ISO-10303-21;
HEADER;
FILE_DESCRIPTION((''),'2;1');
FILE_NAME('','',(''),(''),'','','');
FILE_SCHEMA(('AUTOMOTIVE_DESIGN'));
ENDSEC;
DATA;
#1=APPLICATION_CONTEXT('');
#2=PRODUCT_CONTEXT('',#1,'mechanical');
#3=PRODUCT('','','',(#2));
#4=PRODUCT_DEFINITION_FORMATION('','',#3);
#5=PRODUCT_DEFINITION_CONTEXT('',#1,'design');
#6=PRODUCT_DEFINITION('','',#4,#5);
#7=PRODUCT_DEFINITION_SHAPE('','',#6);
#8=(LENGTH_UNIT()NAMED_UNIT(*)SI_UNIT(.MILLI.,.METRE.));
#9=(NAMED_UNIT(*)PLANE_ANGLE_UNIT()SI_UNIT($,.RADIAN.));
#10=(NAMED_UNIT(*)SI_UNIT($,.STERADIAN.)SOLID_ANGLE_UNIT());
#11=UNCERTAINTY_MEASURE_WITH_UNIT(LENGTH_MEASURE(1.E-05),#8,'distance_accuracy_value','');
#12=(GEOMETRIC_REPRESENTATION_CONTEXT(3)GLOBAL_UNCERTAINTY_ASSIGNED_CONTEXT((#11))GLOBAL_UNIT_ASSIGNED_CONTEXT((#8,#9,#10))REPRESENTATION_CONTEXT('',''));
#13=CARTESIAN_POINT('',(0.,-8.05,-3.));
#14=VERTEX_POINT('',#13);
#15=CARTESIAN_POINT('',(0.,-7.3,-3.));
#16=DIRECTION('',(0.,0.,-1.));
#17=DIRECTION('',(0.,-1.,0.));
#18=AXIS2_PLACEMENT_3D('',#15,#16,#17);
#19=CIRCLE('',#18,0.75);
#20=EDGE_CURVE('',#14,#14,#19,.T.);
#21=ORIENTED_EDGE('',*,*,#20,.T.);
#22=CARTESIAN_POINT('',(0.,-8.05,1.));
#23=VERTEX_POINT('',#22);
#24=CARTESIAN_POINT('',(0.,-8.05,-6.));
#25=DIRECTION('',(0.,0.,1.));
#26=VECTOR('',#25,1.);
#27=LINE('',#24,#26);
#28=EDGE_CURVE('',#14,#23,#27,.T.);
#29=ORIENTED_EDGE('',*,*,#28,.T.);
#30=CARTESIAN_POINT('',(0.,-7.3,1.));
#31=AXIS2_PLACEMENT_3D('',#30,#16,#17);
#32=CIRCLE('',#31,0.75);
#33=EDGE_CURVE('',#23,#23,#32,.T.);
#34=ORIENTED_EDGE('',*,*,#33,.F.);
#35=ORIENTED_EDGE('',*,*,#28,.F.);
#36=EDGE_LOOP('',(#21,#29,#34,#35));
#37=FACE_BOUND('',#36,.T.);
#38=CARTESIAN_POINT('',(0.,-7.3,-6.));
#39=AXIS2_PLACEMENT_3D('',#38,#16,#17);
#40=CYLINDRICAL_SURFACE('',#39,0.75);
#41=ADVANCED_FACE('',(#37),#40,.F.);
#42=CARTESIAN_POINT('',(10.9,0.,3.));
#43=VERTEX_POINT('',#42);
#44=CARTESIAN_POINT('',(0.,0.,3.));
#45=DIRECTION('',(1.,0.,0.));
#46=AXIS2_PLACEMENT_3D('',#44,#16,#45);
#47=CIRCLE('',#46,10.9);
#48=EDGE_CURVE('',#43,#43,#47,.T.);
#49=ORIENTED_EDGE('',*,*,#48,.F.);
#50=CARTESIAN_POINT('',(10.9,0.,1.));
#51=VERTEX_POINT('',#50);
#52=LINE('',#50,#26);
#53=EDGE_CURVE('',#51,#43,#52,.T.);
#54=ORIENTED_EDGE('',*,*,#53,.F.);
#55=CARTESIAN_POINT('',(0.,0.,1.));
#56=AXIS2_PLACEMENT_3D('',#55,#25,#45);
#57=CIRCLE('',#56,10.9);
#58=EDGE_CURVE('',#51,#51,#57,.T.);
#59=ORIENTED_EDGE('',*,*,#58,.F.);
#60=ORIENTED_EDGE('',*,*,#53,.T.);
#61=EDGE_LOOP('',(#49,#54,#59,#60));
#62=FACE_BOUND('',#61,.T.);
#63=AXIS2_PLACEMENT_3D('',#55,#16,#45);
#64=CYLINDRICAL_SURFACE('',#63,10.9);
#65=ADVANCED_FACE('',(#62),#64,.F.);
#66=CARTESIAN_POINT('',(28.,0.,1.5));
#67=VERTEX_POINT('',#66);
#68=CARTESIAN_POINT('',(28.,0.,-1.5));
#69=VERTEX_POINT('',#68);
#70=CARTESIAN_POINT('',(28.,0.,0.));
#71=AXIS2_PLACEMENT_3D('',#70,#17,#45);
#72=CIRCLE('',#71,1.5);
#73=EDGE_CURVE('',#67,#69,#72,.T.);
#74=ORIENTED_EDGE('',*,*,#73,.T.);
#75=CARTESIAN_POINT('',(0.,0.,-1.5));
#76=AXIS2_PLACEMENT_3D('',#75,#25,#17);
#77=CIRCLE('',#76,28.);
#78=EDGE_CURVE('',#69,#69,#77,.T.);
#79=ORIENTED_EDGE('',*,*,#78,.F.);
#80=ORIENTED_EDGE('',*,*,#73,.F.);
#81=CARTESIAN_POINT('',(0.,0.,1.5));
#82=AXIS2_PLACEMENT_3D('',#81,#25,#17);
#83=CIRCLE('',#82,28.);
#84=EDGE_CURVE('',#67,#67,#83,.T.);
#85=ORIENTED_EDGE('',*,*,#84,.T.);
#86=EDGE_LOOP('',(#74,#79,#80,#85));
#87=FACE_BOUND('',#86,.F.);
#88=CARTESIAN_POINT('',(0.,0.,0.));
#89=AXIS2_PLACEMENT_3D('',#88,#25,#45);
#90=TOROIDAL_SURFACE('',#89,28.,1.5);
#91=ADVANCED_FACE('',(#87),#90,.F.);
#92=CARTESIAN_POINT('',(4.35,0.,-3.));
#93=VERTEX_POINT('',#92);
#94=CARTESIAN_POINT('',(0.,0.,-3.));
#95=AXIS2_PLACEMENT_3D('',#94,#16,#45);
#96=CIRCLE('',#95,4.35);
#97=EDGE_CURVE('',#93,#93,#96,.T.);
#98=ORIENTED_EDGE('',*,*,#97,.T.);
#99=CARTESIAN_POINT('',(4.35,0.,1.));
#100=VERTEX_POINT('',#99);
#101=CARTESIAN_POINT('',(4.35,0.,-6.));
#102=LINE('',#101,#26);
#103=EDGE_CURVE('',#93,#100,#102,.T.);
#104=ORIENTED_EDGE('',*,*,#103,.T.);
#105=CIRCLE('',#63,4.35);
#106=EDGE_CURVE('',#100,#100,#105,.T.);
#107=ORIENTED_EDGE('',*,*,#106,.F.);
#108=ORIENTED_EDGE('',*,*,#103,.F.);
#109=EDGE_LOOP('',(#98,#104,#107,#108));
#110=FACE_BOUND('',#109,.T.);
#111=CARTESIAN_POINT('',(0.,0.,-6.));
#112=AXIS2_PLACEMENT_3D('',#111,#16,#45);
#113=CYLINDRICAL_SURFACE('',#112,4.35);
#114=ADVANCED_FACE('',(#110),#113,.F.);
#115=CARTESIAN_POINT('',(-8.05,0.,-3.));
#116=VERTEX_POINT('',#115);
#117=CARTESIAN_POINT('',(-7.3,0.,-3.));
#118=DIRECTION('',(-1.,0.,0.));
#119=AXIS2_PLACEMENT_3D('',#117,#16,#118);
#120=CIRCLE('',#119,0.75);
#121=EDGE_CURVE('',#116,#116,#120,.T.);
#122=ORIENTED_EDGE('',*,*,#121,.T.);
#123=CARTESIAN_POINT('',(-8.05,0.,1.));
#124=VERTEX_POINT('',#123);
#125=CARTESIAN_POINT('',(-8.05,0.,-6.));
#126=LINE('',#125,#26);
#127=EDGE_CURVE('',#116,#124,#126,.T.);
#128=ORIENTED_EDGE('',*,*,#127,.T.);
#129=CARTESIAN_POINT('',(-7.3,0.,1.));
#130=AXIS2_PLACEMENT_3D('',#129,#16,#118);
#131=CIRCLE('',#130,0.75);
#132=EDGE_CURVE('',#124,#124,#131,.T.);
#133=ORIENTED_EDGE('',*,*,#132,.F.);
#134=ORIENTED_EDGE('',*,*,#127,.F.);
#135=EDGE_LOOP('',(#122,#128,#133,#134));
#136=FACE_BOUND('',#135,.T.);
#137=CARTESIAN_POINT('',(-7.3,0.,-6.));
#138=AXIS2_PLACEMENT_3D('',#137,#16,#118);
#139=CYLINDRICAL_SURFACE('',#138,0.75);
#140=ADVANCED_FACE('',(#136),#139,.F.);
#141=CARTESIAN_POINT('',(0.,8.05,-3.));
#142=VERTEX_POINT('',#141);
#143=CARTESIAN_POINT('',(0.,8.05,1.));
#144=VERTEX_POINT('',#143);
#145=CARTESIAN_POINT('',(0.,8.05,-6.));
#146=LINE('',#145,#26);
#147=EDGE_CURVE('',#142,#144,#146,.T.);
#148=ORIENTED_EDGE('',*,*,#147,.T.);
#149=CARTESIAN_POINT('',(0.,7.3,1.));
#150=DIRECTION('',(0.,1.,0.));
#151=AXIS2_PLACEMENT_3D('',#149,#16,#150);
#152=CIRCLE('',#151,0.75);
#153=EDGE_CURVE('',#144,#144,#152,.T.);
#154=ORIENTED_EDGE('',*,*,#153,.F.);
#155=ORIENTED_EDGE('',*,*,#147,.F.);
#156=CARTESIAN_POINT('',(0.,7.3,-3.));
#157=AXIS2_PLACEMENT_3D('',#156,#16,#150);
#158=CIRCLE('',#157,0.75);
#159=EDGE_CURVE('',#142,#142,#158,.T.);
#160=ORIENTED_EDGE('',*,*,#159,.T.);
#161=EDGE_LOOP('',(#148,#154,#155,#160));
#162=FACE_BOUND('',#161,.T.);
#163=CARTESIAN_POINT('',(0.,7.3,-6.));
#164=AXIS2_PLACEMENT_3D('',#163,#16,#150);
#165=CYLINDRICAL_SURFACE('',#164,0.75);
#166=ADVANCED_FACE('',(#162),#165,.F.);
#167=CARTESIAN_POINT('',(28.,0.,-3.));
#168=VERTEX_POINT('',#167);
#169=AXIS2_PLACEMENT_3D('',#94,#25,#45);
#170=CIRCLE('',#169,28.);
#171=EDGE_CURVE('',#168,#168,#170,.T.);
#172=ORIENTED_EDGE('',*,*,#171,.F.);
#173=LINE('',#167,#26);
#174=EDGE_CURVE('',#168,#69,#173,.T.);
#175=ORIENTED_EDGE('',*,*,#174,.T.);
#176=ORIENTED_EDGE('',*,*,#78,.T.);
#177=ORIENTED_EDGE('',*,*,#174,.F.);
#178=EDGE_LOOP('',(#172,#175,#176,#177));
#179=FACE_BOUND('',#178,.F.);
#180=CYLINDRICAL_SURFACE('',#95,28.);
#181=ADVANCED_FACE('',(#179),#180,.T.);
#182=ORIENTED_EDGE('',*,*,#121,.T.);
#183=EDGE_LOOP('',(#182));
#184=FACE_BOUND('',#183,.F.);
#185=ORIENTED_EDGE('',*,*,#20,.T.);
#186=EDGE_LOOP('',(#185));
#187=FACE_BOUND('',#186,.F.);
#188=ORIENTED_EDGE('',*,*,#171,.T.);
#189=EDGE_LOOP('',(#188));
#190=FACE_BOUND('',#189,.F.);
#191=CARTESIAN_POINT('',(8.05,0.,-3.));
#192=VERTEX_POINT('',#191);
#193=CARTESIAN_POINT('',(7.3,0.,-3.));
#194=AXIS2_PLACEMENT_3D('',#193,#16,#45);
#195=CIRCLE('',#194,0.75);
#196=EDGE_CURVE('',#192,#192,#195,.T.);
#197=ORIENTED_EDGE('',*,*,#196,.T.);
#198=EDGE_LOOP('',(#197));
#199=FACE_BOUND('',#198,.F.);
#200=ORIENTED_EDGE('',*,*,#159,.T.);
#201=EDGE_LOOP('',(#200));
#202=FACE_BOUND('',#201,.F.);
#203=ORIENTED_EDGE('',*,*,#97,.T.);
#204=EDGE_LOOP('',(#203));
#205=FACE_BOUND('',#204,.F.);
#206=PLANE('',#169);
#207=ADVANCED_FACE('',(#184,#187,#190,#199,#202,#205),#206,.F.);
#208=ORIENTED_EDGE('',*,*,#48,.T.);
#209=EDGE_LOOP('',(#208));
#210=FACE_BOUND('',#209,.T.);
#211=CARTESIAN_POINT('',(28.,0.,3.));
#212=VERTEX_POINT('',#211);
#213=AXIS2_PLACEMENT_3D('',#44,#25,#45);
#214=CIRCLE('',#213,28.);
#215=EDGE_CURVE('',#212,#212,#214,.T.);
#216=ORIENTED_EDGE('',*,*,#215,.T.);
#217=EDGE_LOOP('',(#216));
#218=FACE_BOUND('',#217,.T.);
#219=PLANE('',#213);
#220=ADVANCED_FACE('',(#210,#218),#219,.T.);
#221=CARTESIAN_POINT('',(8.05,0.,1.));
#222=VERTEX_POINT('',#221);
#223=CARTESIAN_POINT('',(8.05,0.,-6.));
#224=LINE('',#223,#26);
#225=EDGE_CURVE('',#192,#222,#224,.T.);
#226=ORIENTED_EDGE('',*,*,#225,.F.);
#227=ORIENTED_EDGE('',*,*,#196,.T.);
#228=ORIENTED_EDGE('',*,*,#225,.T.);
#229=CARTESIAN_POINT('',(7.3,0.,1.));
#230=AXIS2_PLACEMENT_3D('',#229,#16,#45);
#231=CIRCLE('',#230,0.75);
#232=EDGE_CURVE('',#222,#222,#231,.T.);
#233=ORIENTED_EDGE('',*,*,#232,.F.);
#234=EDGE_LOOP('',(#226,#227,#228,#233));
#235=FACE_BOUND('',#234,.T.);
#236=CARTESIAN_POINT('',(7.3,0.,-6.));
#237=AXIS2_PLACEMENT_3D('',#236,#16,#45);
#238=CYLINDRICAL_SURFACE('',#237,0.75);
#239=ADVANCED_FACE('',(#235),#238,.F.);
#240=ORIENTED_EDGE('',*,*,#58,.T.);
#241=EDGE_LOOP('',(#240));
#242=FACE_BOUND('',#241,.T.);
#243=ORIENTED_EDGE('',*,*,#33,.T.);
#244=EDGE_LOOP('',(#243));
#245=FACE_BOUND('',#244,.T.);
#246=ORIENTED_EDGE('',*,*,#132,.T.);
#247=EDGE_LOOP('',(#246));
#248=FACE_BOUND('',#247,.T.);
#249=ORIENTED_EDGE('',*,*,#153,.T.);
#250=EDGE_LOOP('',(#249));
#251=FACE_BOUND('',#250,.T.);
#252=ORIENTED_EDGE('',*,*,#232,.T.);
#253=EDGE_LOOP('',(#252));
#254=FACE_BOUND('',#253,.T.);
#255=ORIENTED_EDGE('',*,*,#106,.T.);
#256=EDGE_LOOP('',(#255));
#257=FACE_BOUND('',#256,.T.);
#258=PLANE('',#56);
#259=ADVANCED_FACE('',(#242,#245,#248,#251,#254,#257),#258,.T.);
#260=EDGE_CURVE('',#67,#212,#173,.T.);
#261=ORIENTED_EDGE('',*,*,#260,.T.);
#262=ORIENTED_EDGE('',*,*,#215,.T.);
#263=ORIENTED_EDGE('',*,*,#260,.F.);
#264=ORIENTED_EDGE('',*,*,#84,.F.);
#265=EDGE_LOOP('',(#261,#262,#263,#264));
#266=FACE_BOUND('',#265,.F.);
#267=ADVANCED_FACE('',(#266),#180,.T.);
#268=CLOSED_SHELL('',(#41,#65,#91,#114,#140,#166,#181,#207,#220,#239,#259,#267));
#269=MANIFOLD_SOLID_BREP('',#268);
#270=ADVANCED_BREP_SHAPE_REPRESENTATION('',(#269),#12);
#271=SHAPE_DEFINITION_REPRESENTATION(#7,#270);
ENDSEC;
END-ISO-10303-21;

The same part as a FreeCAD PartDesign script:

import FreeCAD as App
import Part
import Sketcher
from FreeCAD import Vector
Q = App.Units.Quantity

doc = App.newDocument("Part")
body = doc.addObject("PartDesign::Body", "Body")

sketch1 = body.newObject("Sketcher::SketchObject", "Sketch")
sketch1.AttachmentSupport = (doc.getObject("XY_Plane"), [""])
sketch1.MapMode = "FlatFace"
sketch1.AttachmentOffset = App.Placement(Vector(0, 0, -6), App.Rotation())
sketch1.addGeometry(Part.Circle(Vector(7.3, 0, 0), Vector(0, 0, 1), 0.8), False)
sketch1.addConstraint(Sketcher.Constraint("PointOnObject", 0, 3, -1))
sketch1.addConstraint(Sketcher.Constraint("Diameter", 0, Q("1.5 mm")))
sketch1.addConstraint(Sketcher.Constraint("DistanceX", -1, 1, 0, 3, Q("7.3 mm")))
pad1 = body.newObject("PartDesign::Pad", "Pad")
pad1.Profile = sketch1
pad1.Length = 10
body2 = doc.addObject("PartDesign::Body", "Body001")
body2.AllowCompound = True
doc.recompute()

body2.BaseFeature = body
doc.recompute()

body3 = doc.addObject("PartDesign::Body", "Body002")
body3.BaseFeature = body
body3.Placement = App.Placement(Vector(0, 0, 0), App.Rotation(Vector(0, 0, 1), 90))
boolean = body2.newObject("PartDesign::Boolean", "Boolean")
boolean.Type = "Fuse"
boolean.addObjects([body3])
doc.recompute()

body4 = doc.addObject("PartDesign::Body", "Body003")
body4.BaseFeature = body
body4.Placement = App.Placement(Vector(0, 0, 0), App.Rotation(Vector(0, 0, 1), 180))
boolean2 = body2.newObject("PartDesign::Boolean", "Boolean001")
boolean2.Type = "Fuse"
boolean2.addObjects([body4])
doc.recompute()

body.Placement = App.Placement(Vector(0, 0, 0), App.Rotation(Vector(0, 0, 1), 270))
boolean3 = body2.newObject("PartDesign::Boolean", "Boolean002")
boolean3.Type = "Fuse"
boolean3.addObjects([body])
body5 = doc.addObject("PartDesign::Body", "Body004")

sketch2 = body5.newObject("Sketcher::SketchObject", "Sketch001")
sketch2.AttachmentSupport = (doc.getObject("XY_Plane004"), [""])
sketch2.MapMode = "FlatFace"
sketch2.AttachmentOffset = App.Placement(Vector(0, 0, -6), App.Rotation())
sketch2.addGeometry(Part.Circle(Vector(0, 0, 0), Vector(0, 0, 1), 4.3), False)
sketch2.addConstraint(Sketcher.Constraint("Coincident", 0, 3, -1, 1))
sketch2.addConstraint(Sketcher.Constraint("Diameter", 0, Q("8.7 mm")))
pad2 = body5.newObject("PartDesign::Pad", "Pad001")
pad2.Profile = sketch2
pad2.Length = 10
body6 = doc.addObject("PartDesign::Body", "Body005")

sketch3 = body6.newObject("Sketcher::SketchObject", "Sketch002")
sketch3.AttachmentSupport = (doc.getObject("XY_Plane005"), [""])
sketch3.MapMode = "FlatFace"
sketch3.AttachmentOffset = App.Placement(Vector(0, 0, 1), App.Rotation())
sketch3.addGeometry(Part.Circle(Vector(0, 0, 0), Vector(0, 0, 1), 11), False)
sketch3.addConstraint(Sketcher.Constraint("Coincident", 0, 3, -1, 1))
sketch3.addConstraint(Sketcher.Constraint("Diameter", 0, Q("21.8 mm")))
pad3 = body6.newObject("PartDesign::Pad", "Pad002")
pad3.Profile = sketch3
pad3.Length = 10
body7 = doc.addObject("PartDesign::Body", "Body006")

sketch4 = body7.newObject("Sketcher::SketchObject", "Sketch003")
sketch4.AttachmentSupport = (doc.getObject("XZ_Plane006"), [""])
sketch4.MapMode = "FlatFace"
sketch4.addGeometry(Part.Circle(Vector(28, 0, 0), Vector(0, 0, 1), 1.5), False)
sketch4.addConstraint(Sketcher.Constraint("PointOnObject", 0, 3, -1))
sketch4.addConstraint(Sketcher.Constraint("Diameter", 0, Q("3 mm")))
sketch4.addConstraint(Sketcher.Constraint("DistanceX", -1, 1, 0, 3, Q("28 mm")))
revolution = body7.newObject("PartDesign::Revolution", "Revolution")
revolution.Profile = sketch4
revolution.ReferenceAxis = (sketch4, ["V_Axis"])
revolution.Angle = 360
body8 = doc.addObject("PartDesign::Body", "Body007")

sketch5 = body8.newObject("Sketcher::SketchObject", "Sketch004")
sketch5.AttachmentSupport = (doc.getObject("XY_Plane007"), [""])
sketch5.MapMode = "FlatFace"
sketch5.AttachmentOffset = App.Placement(Vector(0, 0, -3), App.Rotation())
sketch5.addGeometry(Part.Circle(Vector(0, 0, 0), Vector(0, 0, 1), 28), False)
sketch5.addConstraint(Sketcher.Constraint("Coincident", 0, 3, -1, 1))
sketch5.addConstraint(Sketcher.Constraint("Diameter", 0, Q("56 mm")))
pad4 = body8.newObject("PartDesign::Pad", "Pad003")
pad4.Profile = sketch5
pad4.Length = 6
doc.recompute()

boolean4 = body8.newObject("PartDesign::Boolean", "Boolean003")
boolean4.Type = "Cut"
boolean4.addObjects([body7])
doc.recompute()

boolean5 = body8.newObject("PartDesign::Boolean", "Boolean004")
boolean5.Type = "Cut"
boolean5.addObjects([body6])
doc.recompute()

boolean6 = body8.newObject("PartDesign::Boolean", "Boolean005")
boolean6.Type = "Cut"
boolean6.addObjects([body5])
doc.recompute()

boolean7 = body8.newObject("PartDesign::Boolean", "Boolean006")
boolean7.Type = "Cut"
boolean7.addObjects([body2])

doc.recompute()
